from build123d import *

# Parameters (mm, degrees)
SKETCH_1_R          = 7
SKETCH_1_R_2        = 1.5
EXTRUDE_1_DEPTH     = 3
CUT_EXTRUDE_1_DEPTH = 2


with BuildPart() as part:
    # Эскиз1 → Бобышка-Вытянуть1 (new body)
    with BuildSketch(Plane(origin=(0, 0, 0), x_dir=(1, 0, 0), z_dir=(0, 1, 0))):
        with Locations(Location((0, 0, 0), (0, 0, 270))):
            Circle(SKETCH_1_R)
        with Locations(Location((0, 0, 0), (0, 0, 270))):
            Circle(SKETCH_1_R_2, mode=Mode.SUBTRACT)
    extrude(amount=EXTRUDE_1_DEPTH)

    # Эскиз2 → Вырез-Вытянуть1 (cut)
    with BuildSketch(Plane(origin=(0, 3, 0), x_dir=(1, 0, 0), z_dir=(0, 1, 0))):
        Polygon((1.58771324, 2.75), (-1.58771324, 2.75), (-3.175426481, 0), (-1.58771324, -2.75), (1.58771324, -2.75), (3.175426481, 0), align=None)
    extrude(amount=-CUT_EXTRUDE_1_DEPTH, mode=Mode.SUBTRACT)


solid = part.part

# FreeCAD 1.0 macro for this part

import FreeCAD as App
import Part
import Sketcher
from FreeCAD import Vector
Q = App.Units.Quantity


def add_polygon(sketch, points):
    """Adds a closed chain of lines whose ends are joined by coincident constraints."""
    first, n = sketch.GeometryCount, len(points)
    for a, b in zip(points, points[1:] + points[:1]):
        sketch.addGeometry(Part.LineSegment(App.Vector(*a, 0), App.Vector(*b, 0)), False)
    for i in range(n):
        sketch.addConstraint(Sketcher.Constraint("Coincident", first + i, 2, first + (i + 1) % n, 1))

doc = App.newDocument("Part")
body = doc.addObject("PartDesign::Body", "Body")

# Sketch on XZ plane
sketch1 = body.newObject("Sketcher::SketchObject", "Sketch")
sketch1.AttachmentSupport = (doc.getObject("XZ_Plane"), [""])
sketch1.MapMode = "FlatFace"
sketch1.addGeometry([
    Part.Circle(Vector(0, 0, 0), Vector(0, 0, 1), 7),
    Part.Circle(Vector(0, 0, 0), Vector(0, 0, 1), 1.5),
], False)
sketch1.addConstraint([
    Sketcher.Constraint("Coincident", 0, 3, -1, 1),
    Sketcher.Constraint("Coincident", 1, 3, -1, 1),
    Sketcher.Constraint("Diameter", 0, 14.0),
    Sketcher.Constraint("Diameter", 1, 3.0),
])
pad1 = body.newObject("PartDesign::Pad", "Pad")
pad1.Profile = sketch1
pad1.Length = 3
pad1.Reversed = True

# Sketch on XZ plane
sketch2 = body.newObject("Sketcher::SketchObject", "Sketch001")
sketch2.AttachmentSupport = (doc.getObject("XZ_Plane"), [""])
sketch2.MapMode = "FlatFace"
sketch2.AttachmentOffset = App.Placement(Vector(0, 0, -3), App.Rotation())
add_polygon(sketch2, [(1.6, -2.8), (-1.6, -2.8), (-3.2, 0), (-1.6, 2.8), (1.6, 2.8), (3.2, 0)])  # lines 0-5
sketch2.addConstraint([
    Sketcher.Constraint("Horizontal", 0),
    Sketcher.Constraint("Horizontal", 3),
    Sketcher.Constraint("Symmetric", 0, 2, 3, 2, -1, 1),
    Sketcher.Constraint("Symmetric", 1, 2, 4, 2, -1, 1),
    Sketcher.Constraint("PointOnObject", 1, 2, -1),
    Sketcher.Constraint("Parallel", 2, 5),
    Sketcher.Constraint("Vertical", 0, 2, 2, 2),
    Sketcher.Constraint("Angle", 1, Q("120 deg")),
    Sketcher.Constraint("DistanceY", 0, 2, 2, 2, 5.5),
    Sketcher.Constraint("DistanceX", 0, 2, 0, 1, 3.175426),
])
pocket1 = body.newObject("PartDesign::Pocket", "Pocket")
pocket1.Profile = sketch2
pocket1.Length = 2
pocket1.Reversed = True

doc.recompute()
